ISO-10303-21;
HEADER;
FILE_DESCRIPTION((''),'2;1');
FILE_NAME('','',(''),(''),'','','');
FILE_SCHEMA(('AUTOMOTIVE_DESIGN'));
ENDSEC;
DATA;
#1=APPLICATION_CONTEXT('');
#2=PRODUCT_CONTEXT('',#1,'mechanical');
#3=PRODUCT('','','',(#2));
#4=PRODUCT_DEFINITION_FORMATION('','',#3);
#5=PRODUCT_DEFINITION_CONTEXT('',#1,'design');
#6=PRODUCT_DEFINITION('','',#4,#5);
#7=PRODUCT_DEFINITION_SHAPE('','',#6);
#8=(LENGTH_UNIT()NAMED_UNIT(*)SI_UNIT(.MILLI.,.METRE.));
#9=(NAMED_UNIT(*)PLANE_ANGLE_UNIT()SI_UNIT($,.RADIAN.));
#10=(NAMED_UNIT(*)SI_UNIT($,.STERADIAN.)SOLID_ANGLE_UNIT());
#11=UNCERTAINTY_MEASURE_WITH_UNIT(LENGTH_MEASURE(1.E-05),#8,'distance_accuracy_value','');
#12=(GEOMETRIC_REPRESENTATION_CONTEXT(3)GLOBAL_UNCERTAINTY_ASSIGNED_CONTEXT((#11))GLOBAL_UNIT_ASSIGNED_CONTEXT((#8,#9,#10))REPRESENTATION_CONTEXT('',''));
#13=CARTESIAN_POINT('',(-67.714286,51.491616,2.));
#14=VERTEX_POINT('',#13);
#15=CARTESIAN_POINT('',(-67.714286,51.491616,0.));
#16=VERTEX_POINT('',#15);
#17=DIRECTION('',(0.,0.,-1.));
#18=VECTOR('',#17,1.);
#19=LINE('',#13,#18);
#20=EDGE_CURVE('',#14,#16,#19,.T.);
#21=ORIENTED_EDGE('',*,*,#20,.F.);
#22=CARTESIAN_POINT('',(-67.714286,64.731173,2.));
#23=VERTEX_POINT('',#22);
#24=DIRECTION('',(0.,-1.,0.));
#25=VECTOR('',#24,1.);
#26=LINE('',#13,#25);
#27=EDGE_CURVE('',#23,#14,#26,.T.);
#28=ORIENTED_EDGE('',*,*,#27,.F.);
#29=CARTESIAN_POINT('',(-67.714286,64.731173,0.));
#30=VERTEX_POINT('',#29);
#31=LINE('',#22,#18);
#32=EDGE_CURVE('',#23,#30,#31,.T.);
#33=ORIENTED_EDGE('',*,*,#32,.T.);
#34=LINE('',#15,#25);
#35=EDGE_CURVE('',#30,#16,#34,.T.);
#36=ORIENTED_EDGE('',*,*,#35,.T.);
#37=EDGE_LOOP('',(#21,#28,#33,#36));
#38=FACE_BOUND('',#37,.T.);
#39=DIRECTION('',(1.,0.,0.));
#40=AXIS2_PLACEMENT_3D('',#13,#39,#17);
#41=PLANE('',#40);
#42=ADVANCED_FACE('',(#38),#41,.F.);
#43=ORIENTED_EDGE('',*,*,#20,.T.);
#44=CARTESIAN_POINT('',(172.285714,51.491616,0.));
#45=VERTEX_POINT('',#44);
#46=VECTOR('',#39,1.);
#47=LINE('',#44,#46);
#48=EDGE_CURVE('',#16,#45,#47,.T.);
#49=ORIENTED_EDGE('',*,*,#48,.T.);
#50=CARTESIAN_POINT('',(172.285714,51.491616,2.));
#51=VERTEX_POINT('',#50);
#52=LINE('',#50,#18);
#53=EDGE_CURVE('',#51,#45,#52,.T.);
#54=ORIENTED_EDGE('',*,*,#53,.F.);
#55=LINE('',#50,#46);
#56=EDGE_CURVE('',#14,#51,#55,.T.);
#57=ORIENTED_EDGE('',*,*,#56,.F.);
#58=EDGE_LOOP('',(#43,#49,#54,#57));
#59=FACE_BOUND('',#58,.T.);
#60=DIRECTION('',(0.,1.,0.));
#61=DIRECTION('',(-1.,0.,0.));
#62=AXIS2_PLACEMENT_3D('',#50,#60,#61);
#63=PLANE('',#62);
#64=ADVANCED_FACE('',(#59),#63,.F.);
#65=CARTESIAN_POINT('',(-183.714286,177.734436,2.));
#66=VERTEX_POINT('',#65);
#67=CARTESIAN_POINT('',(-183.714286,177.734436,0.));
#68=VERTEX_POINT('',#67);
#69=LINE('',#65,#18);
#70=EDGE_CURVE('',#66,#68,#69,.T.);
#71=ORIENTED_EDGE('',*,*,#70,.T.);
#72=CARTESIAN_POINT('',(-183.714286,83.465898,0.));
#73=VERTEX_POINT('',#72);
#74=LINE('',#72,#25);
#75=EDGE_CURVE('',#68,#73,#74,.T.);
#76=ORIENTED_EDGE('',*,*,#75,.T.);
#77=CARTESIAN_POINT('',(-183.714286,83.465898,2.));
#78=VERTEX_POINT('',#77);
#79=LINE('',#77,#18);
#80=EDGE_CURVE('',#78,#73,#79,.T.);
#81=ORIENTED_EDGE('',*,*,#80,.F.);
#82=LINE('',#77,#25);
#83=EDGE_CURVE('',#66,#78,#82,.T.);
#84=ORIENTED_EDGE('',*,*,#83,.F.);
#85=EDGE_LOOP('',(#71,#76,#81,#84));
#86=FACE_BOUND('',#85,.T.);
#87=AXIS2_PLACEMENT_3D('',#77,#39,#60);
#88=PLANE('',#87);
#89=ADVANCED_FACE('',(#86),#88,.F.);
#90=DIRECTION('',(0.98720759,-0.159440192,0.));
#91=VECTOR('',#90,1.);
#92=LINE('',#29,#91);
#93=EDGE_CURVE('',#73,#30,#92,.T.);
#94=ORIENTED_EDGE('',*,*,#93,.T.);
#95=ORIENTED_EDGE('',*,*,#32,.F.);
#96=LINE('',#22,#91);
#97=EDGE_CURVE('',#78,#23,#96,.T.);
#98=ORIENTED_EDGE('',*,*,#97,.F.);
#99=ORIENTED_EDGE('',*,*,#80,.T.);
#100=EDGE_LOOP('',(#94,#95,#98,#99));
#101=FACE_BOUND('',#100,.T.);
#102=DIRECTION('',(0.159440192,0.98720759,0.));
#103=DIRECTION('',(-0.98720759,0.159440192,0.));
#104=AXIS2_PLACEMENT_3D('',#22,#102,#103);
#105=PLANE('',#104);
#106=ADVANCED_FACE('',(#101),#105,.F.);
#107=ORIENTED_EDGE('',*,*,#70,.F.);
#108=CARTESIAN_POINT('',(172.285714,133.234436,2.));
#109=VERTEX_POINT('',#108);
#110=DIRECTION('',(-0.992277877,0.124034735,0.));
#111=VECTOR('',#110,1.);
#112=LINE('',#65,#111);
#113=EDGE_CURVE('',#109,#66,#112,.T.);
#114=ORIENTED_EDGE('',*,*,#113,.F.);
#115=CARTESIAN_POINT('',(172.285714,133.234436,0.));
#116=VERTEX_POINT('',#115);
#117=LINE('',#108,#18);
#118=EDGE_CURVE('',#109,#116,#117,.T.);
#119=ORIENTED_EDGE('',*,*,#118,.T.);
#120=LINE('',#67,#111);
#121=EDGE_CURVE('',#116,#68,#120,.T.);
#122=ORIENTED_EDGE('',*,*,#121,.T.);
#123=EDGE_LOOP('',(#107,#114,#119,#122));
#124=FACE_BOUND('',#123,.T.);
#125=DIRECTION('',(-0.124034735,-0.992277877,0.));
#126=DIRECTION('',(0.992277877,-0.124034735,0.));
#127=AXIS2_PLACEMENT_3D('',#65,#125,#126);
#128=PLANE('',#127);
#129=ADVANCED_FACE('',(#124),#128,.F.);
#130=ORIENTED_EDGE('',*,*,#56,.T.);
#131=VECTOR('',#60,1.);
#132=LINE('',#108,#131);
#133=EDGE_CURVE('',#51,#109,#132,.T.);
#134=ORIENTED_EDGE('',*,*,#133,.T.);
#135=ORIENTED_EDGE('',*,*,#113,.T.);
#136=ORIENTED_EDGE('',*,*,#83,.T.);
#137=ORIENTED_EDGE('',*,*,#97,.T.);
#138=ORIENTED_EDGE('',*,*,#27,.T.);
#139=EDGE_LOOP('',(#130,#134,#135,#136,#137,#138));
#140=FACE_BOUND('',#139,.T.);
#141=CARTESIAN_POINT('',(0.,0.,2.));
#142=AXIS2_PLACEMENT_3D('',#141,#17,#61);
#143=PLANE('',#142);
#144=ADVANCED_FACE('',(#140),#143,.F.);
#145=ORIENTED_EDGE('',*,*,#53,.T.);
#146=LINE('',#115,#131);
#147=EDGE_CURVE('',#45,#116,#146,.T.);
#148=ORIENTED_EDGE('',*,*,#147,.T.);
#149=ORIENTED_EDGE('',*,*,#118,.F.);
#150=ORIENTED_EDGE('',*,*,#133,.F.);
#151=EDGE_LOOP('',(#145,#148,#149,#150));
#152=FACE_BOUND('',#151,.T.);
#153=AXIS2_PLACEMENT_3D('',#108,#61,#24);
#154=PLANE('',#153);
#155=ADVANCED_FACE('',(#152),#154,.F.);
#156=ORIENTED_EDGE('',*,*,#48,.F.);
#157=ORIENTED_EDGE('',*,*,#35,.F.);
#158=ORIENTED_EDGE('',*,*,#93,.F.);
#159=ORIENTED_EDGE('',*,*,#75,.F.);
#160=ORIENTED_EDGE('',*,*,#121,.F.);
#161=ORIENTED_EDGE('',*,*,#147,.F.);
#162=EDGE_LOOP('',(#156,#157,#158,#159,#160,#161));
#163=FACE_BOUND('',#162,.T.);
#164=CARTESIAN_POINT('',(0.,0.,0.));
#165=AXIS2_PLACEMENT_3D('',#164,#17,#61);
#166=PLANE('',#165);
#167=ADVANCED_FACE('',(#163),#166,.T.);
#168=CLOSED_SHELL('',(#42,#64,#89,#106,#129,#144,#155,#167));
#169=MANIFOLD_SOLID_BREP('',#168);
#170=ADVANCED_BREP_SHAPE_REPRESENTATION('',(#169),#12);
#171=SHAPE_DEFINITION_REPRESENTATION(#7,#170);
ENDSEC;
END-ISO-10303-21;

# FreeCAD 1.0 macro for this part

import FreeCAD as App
import Part
import Sketcher

V = App.Vector


def add_polygon(sketch, points):
    """Adds a closed chain of lines whose ends are joined by coincident constraints."""
    first, n = sketch.GeometryCount, len(points)
    for a, b in zip(points, points[1:] + points[:1]):
        sketch.addGeometry(Part.LineSegment(App.Vector(*a, 0), App.Vector(*b, 0)), False)
    for i in range(n):
        sketch.addConstraint(Sketcher.Constraint("Coincident", first + i, 2, first + (i + 1) % n, 1))

doc = App.newDocument("Part")
body = doc.addObject("PartDesign::Body", "Body")

sketch1 = body.newObject("Sketcher::SketchObject", "Sketch")
sketch1.AttachmentSupport = (doc.getObject("XY_Plane"), [""])
sketch1.MapMode = "FlatFace"
add_polygon(sketch1, [(172, 51), (172, 133), (-184, 178), (-184, 83), (-68, 65), (-68, 51)])
sketch1.addConstraint(Sketcher.Constraint("Vertical", 0))
sketch1.addConstraint(Sketcher.Constraint("Vertical", 2))
sketch1.addConstraint(Sketcher.Constraint("Vertical", 4))
sketch1.addConstraint(Sketcher.Constraint("Horizontal", 5))
sketch1.addConstraint(Sketcher.Constraint("DistanceX", 5, 1, 5, 2, 240.0))
sketch1.addConstraint(Sketcher.Constraint("DistanceX", 1, 2, 0, 2, 356.0))
sketch1.addConstraint(Sketcher.Constraint("DistanceY", 0, 2, 1, 2, 44.5))
sketch1.addConstraint(Sketcher.Constraint("DistanceY", 0, 1, 0, 2, 81.742819))
sketch1.addConstraint(Sketcher.Constraint("Distance", 3, 117.503148))
sketch1.addConstraint(Sketcher.Constraint("DistanceY", 2, 2, 2, 1, 94.268538))
sketch1.addConstraint(Sketcher.Constraint("DistanceX", -1, 1, 0, 2, 172.285714))
sketch1.addConstraint(Sketcher.Constraint("DistanceY", -1, 1, 0, 2, 133.234436))
pad1 = body.newObject("PartDesign::Pad", "Pad")
pad1.Profile = sketch1
pad1.Length = 2

doc.recompute()
